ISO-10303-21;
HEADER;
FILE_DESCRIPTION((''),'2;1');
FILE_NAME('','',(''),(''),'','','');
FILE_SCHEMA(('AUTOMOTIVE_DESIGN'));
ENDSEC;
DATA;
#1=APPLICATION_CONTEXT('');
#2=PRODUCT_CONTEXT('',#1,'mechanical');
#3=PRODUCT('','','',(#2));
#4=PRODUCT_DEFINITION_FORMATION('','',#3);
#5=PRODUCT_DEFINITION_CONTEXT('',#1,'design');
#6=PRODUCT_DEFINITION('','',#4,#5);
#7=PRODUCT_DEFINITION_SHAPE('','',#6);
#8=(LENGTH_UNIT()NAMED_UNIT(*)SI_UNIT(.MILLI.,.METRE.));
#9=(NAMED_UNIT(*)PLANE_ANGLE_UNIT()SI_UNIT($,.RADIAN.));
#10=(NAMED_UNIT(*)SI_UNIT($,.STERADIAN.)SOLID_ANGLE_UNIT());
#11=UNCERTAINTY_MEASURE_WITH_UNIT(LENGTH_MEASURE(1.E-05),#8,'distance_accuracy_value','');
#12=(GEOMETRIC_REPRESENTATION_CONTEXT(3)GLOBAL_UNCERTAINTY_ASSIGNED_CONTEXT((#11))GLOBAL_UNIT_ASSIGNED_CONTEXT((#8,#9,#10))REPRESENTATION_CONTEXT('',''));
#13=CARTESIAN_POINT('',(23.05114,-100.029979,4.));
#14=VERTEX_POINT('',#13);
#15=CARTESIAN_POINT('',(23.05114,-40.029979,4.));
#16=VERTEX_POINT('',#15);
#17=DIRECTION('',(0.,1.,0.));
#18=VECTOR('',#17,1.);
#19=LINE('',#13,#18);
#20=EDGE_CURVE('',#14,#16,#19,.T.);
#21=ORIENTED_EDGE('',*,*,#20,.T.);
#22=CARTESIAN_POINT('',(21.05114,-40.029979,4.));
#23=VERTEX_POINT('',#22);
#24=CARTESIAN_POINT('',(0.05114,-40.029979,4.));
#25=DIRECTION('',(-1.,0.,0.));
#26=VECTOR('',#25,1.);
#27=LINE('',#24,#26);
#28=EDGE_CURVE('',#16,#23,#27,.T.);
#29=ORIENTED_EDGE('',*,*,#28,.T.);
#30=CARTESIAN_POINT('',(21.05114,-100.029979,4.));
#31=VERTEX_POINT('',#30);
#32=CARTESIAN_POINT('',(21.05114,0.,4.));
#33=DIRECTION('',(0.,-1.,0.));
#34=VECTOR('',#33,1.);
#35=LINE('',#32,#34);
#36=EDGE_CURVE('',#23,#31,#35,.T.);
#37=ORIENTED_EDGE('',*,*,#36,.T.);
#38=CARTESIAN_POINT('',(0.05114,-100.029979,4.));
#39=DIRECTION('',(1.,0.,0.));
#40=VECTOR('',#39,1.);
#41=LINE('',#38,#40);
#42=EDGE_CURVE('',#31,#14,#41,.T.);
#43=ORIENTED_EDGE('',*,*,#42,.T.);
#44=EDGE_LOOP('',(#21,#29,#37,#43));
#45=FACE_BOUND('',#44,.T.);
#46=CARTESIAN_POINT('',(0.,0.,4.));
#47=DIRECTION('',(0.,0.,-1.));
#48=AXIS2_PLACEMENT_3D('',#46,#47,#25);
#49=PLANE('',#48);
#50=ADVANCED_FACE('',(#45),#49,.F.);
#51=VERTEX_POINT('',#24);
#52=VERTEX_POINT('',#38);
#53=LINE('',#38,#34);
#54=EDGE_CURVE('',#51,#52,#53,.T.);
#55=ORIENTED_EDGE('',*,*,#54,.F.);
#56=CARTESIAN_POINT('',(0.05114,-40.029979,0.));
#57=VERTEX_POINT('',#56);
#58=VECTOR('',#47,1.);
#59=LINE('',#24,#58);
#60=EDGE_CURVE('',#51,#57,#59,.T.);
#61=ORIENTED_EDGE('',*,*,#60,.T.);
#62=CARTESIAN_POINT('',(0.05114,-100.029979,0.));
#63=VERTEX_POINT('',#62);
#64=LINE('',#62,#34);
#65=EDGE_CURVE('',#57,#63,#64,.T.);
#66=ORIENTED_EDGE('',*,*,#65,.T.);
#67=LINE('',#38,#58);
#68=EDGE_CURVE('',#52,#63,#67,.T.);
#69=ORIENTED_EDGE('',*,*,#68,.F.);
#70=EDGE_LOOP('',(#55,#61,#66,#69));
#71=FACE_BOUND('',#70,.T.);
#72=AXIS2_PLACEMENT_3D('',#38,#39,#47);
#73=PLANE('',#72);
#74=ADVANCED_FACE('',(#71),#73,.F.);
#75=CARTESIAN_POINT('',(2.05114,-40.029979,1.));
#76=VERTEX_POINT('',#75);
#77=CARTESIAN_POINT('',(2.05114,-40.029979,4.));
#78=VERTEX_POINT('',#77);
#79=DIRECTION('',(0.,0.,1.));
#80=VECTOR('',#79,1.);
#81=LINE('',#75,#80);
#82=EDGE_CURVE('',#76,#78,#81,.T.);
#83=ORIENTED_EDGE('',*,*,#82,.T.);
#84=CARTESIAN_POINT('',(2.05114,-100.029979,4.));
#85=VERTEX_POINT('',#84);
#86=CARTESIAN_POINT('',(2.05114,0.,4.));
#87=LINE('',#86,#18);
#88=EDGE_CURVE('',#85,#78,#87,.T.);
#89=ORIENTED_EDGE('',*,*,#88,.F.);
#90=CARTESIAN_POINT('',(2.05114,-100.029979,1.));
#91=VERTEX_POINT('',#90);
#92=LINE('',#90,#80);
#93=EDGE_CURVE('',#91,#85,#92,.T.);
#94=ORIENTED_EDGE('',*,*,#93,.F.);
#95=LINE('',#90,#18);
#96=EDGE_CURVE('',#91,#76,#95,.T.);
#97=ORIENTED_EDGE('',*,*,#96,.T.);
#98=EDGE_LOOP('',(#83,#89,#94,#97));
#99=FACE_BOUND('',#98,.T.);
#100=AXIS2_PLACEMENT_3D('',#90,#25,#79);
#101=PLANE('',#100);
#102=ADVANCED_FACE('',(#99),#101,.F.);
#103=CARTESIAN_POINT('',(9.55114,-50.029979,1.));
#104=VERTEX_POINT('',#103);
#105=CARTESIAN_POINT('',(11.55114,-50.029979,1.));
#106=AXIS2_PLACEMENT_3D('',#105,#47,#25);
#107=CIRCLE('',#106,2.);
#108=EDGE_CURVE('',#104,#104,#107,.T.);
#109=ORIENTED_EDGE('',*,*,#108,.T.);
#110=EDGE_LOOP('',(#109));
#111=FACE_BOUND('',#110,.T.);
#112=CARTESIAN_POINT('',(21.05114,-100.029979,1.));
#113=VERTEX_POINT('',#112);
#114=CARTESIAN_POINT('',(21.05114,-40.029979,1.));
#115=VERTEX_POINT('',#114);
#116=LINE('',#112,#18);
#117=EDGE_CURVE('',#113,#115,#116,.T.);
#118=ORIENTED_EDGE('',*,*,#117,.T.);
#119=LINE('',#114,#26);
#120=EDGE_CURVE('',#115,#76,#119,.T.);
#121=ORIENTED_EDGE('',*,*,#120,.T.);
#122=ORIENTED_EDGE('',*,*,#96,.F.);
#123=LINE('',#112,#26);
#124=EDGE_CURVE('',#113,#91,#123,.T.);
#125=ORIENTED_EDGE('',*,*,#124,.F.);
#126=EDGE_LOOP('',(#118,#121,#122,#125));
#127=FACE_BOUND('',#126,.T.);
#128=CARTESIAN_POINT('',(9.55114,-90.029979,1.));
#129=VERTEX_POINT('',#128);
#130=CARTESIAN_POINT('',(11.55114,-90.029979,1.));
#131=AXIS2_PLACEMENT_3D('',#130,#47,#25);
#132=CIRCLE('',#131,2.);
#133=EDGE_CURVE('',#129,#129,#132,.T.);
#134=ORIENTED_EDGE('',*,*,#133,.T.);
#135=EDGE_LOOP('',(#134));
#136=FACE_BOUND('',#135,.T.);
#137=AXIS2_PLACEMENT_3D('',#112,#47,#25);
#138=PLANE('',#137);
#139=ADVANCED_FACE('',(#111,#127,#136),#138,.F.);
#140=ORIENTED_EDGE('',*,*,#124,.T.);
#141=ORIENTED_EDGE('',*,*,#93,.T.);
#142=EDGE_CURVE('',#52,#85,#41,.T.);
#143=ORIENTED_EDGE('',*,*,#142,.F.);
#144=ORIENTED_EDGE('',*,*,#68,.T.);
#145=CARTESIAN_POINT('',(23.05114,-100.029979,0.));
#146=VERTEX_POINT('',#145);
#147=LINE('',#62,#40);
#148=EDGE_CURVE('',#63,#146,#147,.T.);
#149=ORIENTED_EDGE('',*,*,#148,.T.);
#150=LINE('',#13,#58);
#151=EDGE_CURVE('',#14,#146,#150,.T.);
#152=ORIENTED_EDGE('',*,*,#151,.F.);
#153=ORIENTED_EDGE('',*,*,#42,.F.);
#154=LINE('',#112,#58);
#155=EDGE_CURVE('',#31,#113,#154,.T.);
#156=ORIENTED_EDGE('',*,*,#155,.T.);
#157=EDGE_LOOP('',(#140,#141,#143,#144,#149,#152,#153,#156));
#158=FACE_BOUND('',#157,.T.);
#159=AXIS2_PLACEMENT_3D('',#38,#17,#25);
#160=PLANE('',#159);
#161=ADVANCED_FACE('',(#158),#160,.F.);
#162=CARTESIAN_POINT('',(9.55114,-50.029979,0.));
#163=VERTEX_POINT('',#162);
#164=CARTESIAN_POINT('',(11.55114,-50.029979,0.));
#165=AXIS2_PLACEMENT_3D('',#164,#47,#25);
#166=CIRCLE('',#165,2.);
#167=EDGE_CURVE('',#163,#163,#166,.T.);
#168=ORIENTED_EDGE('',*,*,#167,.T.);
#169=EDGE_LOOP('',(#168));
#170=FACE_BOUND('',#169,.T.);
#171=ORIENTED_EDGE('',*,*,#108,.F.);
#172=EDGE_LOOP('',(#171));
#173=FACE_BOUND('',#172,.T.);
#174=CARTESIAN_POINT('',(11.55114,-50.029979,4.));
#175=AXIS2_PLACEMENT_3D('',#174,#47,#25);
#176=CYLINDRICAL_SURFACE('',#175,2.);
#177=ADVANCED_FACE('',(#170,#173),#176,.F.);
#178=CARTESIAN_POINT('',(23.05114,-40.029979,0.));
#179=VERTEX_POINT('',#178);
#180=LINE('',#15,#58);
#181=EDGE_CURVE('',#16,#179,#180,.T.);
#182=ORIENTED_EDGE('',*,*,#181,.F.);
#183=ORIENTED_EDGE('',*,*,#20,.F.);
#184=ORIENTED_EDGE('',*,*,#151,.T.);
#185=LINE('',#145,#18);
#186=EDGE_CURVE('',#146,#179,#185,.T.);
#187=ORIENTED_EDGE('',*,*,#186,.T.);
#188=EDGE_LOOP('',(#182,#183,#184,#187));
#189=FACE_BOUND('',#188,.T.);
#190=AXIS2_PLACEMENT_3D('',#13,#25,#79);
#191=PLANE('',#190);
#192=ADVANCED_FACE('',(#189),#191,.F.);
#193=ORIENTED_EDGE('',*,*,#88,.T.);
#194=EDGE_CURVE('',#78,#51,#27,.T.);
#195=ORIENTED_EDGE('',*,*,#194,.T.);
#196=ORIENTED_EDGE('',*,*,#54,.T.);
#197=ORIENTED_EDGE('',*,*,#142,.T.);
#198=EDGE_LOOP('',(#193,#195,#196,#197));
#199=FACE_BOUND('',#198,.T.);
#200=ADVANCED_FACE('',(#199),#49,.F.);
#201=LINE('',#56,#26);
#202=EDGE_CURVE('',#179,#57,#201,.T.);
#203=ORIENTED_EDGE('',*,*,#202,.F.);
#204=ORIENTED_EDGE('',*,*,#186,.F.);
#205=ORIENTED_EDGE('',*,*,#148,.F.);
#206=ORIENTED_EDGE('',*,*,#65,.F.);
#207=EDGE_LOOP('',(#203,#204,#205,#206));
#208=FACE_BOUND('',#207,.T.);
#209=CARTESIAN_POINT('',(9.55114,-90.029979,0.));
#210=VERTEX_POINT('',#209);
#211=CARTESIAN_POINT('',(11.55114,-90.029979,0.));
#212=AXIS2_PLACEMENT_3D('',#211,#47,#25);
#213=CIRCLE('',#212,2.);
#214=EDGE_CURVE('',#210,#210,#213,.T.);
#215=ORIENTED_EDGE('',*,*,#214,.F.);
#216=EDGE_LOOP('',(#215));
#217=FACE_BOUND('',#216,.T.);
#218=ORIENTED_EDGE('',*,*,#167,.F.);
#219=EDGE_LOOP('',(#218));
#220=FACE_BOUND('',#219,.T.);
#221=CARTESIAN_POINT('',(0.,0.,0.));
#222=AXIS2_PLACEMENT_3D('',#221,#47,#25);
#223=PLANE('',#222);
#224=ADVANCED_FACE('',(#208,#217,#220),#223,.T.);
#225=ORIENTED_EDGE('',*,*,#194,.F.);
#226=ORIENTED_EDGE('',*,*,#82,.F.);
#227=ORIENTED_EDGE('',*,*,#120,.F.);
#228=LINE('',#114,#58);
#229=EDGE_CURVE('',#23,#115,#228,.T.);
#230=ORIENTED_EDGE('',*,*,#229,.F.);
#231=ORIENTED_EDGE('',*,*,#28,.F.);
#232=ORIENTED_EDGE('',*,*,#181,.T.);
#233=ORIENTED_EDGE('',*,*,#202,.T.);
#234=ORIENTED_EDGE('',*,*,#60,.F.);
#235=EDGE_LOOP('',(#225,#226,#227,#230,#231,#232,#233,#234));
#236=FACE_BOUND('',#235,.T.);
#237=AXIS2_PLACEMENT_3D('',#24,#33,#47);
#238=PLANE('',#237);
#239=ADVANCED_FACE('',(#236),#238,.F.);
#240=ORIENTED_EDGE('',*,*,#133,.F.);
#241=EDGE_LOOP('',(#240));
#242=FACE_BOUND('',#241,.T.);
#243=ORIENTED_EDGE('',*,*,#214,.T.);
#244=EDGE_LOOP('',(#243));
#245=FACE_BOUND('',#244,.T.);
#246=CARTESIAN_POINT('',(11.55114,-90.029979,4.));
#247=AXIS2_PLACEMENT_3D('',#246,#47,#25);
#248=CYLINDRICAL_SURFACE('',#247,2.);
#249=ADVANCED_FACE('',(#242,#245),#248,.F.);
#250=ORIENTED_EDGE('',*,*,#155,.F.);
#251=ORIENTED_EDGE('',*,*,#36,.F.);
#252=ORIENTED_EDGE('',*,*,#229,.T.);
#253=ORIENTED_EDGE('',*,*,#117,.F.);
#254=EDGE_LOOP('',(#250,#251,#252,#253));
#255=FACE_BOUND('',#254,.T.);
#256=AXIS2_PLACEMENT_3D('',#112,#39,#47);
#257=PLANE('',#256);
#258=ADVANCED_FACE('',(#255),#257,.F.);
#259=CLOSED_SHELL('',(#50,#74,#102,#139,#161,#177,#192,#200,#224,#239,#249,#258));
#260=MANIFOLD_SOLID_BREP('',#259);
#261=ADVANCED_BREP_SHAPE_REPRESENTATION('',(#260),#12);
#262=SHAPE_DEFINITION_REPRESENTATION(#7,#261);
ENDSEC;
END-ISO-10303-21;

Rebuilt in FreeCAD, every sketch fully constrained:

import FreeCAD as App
import Part
import Sketcher
from FreeCAD import Vector


def add_polygon(sketch, points):
    """Adds a closed chain of lines whose ends are joined by coincident constraints."""
    first, n = sketch.GeometryCount, len(points)
    for a, b in zip(points, points[1:] + points[:1]):
        sketch.addGeometry(Part.LineSegment(App.Vector(*a, 0), App.Vector(*b, 0)), False)
    for i in range(n):
        sketch.addConstraint(Sketcher.Constraint("Coincident", first + i, 2, first + (i + 1) % n, 1))

doc = App.newDocument("Part")
body = doc.addObject("PartDesign::Body", "Body")

# Sketch on XY plane
sketch1 = body.newObject("Sketcher::SketchObject", "Sketch")
sketch1.AttachmentSupport = (doc.getObject("XY_Plane"), [""])
sketch1.MapMode = "FlatFace"
add_polygon(sketch1, [(0.05114, -40.029979), (0.05114, -100.029979), (23.05114, -100.029979), (23.05114, -40.029979)])  # lines 0-3
sketch1.addConstraint([
    Sketcher.Constraint("Vertical", 0),
    Sketcher.Constraint("Horizontal", 1),
    Sketcher.Constraint("Vertical", 2),
    Sketcher.Constraint("Horizontal", 3),
    Sketcher.Constraint("DistanceX", 1, 1, 1, 2, 23.0),
    Sketcher.Constraint("DistanceY", 0, 2, 0, 1, 60.0),
    Sketcher.Constraint("DistanceX", -1, 1, 0, 2, 0.05114),
    Sketcher.Constraint("DistanceY", 0, 2, -1, 1, 100.029979),
])
pad1 = body.newObject("PartDesign::Pad", "Pad")
pad1.Profile = sketch1
pad1.Length = 4

# Sketch on XZ plane
sketch2 = body.newObject("Sketcher::SketchObject", "Sketch001")
sketch2.AttachmentSupport = (doc.getObject("XZ_Plane"), [""])
sketch2.MapMode = "FlatFace"
sketch2.AttachmentOffset = App.Placement(Vector(0, 0, 40.029979), App.Rotation())
add_polygon(sketch2, [(2.05114, 1), (2.05114, 4.652617), (21.05114, 4.652617), (21.05114, 1)])  # lines 0-3
sketch2.addConstraint([
    Sketcher.Constraint("Vertical", 0),
    Sketcher.Constraint("Horizontal", 1),
    Sketcher.Constraint("Vertical", 2),
    Sketcher.Constraint("Horizontal", 3),
    Sketcher.Constraint("DistanceX", 1, 1, 1, 2, 19.0),
    Sketcher.Constraint("DistanceY", -1, 1, 2, 2, 1.0),
    Sketcher.Constraint("DistanceY", 0, 1, 0, 2, 3.652617),
    Sketcher.Constraint("DistanceX", -1, 1, 0, 2, 2.05114),
])
pocket1 = body.newObject("PartDesign::Pocket", "Pocket")
pocket1.Profile = sketch2
pocket1.Type = "ThroughAll"
pocket1.Reversed = True

# Sketch on XY plane
sketch3 = body.newObject("Sketcher::SketchObject", "Sketch002")
sketch3.AttachmentSupport = (doc.getObject("XY_Plane"), [""])
sketch3.MapMode = "FlatFace"
sketch3.addGeometry([
    Part.Circle(Vector(11.55114, -50.029979, 0), Vector(0, 0, 1), 2),
    Part.Circle(Vector(11.55114, -90.029979, 0), Vector(0, 0, 1), 2),
], False)
sketch3.addConstraint([
    Sketcher.Constraint("Equal", 0, 1),
    Sketcher.Constraint("Vertical", 0, 3, 1, 3),
    Sketcher.Constraint("Diameter", 0, 4.0),
    Sketcher.Constraint("DistanceY", 1, 3, 0, 3, 40.0),
    Sketcher.Constraint("DistanceX", -1, 1, 0, 3, 11.55114),
    Sketcher.Constraint("DistanceY", 0, 3, -1, 1, 50.029979),
])
pocket2 = body.newObject("PartDesign::Pocket", "Pocket001")
pocket2.Profile = sketch3
pocket2.Type = "ThroughAll"
pocket2.Reversed = True

doc.recompute()
